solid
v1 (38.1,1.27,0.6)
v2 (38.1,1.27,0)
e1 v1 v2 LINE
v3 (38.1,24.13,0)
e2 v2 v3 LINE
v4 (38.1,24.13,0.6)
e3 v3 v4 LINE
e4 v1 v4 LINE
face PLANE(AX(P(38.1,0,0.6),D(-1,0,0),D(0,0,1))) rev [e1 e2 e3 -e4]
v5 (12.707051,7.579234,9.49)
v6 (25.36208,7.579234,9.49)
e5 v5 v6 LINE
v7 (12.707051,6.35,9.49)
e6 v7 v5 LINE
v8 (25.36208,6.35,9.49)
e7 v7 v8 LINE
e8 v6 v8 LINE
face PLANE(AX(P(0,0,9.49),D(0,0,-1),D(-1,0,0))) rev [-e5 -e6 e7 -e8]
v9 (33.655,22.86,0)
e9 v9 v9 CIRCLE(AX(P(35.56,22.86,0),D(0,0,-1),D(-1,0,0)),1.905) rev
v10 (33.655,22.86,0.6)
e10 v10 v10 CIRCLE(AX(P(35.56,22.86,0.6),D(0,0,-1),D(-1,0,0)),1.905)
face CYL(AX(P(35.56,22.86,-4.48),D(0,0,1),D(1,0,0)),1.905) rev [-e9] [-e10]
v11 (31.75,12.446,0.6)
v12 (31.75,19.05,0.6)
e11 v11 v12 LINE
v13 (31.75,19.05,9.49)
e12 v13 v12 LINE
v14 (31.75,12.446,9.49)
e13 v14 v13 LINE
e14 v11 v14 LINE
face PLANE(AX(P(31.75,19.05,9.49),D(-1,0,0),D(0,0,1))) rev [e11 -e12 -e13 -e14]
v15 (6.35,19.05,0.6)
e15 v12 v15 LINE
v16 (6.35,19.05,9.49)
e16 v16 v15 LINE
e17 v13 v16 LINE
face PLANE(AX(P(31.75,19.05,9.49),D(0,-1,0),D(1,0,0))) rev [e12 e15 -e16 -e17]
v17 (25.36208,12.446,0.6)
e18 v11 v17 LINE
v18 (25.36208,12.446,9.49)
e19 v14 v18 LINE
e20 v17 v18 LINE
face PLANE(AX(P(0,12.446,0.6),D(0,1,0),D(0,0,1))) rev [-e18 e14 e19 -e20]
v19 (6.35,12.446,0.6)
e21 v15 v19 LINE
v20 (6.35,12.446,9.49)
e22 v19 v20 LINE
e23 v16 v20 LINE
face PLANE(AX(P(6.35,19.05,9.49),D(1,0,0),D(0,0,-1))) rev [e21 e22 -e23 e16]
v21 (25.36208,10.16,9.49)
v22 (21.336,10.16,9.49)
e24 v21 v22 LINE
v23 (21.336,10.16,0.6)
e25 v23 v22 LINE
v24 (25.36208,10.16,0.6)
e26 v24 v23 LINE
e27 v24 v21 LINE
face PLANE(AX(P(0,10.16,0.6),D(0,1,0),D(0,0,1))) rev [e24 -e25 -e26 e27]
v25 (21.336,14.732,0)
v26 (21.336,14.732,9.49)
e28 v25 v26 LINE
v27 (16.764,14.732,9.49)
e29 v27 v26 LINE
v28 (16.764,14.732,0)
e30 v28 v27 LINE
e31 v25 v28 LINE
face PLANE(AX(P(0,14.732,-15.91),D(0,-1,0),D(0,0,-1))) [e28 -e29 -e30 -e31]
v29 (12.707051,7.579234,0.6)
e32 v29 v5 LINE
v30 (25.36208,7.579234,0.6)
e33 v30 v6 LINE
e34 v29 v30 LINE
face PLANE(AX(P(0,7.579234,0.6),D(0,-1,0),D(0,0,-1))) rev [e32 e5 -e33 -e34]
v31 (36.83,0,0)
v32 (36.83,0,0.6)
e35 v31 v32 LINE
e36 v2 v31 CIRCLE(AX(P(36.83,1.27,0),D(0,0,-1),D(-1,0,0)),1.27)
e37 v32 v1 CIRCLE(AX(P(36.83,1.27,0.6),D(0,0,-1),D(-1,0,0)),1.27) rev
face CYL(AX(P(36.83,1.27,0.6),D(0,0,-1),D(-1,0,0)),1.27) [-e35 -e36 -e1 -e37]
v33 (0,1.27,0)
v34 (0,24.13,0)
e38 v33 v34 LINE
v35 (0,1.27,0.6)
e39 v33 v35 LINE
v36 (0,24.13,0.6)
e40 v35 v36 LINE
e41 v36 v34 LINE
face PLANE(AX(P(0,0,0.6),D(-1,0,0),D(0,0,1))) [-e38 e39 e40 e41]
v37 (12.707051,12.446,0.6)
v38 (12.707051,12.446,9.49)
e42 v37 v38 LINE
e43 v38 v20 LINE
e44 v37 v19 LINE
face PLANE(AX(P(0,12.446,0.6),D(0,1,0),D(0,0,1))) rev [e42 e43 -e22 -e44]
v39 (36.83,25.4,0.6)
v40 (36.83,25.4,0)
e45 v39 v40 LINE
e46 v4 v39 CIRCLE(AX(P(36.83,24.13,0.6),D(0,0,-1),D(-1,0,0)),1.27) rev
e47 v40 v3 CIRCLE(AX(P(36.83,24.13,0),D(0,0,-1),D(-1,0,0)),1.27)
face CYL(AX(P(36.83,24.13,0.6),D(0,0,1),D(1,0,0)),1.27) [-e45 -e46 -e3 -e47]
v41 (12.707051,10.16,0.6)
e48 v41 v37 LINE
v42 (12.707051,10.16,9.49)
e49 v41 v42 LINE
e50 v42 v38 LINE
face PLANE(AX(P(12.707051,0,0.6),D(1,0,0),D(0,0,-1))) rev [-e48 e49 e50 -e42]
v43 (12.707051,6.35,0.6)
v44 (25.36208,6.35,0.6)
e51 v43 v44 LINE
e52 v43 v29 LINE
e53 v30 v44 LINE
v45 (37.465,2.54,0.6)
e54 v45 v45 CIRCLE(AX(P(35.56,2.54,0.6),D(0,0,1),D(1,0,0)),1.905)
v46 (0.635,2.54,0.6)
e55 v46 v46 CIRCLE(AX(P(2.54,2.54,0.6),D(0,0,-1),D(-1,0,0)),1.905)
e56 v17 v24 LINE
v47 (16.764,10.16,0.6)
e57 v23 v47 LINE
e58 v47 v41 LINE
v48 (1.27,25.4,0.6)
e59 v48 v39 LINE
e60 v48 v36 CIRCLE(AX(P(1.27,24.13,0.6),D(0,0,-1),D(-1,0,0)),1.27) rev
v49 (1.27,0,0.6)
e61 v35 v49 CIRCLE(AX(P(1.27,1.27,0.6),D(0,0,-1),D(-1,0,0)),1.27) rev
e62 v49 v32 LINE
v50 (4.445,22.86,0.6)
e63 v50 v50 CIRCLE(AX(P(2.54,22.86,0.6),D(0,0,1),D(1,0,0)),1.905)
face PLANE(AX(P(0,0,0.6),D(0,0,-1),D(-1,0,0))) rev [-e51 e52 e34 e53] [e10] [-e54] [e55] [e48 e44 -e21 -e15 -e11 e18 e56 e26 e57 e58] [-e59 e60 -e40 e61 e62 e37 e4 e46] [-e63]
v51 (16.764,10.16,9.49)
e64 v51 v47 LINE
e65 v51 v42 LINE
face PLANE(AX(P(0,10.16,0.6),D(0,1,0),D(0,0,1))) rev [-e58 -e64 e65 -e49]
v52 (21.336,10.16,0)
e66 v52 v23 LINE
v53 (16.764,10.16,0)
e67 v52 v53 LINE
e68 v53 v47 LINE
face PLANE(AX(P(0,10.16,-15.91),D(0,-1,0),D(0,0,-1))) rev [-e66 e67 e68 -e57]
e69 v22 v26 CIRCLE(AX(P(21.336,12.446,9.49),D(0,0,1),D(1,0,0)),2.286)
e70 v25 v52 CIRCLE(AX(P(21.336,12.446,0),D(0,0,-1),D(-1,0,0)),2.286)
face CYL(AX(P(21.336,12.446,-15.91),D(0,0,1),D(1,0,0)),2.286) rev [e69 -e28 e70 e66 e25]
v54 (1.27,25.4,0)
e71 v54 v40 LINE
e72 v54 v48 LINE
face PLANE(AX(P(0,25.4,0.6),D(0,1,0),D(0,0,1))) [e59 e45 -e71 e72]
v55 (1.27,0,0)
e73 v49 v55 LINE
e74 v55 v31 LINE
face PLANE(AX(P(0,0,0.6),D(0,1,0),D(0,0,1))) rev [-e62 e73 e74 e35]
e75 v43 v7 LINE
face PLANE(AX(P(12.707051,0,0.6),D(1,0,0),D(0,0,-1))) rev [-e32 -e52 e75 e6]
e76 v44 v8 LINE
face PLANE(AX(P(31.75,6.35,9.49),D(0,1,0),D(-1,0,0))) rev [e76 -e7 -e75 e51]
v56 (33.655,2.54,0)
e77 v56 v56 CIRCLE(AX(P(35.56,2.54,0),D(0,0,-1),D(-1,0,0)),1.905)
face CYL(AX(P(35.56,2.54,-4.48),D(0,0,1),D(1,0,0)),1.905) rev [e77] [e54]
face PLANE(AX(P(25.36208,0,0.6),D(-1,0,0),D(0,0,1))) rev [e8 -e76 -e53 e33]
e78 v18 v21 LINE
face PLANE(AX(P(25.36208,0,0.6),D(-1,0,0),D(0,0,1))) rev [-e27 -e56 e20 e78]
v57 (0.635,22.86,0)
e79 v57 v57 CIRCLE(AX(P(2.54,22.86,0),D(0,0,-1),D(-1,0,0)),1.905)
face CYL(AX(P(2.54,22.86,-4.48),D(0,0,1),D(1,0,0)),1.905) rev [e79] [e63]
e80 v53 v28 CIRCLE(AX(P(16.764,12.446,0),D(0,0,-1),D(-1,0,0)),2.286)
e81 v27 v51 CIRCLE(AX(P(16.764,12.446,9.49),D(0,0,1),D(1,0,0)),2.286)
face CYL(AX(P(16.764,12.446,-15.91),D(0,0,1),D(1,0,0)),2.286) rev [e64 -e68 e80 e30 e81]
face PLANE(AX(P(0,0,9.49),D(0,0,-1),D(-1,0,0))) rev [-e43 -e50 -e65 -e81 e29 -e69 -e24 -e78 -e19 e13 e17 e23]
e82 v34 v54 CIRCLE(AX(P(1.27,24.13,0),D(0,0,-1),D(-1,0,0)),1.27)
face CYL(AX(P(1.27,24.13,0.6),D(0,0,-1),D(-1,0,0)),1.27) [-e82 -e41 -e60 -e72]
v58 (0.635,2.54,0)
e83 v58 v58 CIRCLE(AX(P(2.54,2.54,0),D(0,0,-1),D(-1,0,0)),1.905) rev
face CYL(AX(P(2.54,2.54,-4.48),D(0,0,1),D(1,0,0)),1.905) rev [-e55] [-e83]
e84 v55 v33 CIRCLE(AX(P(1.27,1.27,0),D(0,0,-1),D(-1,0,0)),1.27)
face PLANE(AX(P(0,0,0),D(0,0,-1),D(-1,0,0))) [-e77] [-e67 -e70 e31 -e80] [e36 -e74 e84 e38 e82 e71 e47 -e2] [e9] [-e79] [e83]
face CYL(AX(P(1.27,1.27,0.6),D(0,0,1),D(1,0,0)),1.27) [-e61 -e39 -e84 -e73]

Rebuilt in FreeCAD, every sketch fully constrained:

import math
import FreeCAD as App
import Part
import Sketcher
from FreeCAD import Vector
Q = App.Units.Quantity


def edges_at(feature, points):
    """Names of the edges that pass closest to the given points."""
    edges = feature.Shape.Edges
    near = lambda p: min(range(len(edges)), key=lambda i: edges[i].distToShape(Part.Vertex(*p))[0])
    return sorted({f"Edge{near(p) + 1}" for p in points})

doc = App.newDocument("Part")
body = doc.addObject("PartDesign::Body", "Body")

# Sketch on XY plane
sketch1 = body.newObject("Sketcher::SketchObject", "Sketch")
sketch1.AttachmentSupport = (doc.getObject("XY_Plane"), [""])
sketch1.MapMode = "FlatFace"
sketch1.addGeometry(Part.LineSegment(Vector(0, 25, 0), Vector(0, 0, 0)), False)
sketch1.addGeometry(Part.LineSegment(Vector(0, 0, 0), Vector(38, 0, 0)), False)
sketch1.addGeometry(Part.LineSegment(Vector(38, 0, 0), Vector(38, 25, 0)), False)
sketch1.addGeometry(Part.LineSegment(Vector(38, 25, 0), Vector(0, 25, 0)), False)
sketch1.addConstraint(Sketcher.Constraint("Coincident", 0, 2, 1, 1))
sketch1.addConstraint(Sketcher.Constraint("Coincident", 1, 2, 2, 1))
sketch1.addConstraint(Sketcher.Constraint("Coincident", 2, 2, 3, 1))
sketch1.addConstraint(Sketcher.Constraint("Coincident", 3, 2, 0, 1))
sketch1.addConstraint(Sketcher.Constraint("Vertical", 0))
sketch1.addConstraint(Sketcher.Constraint("Horizontal", 1))
sketch1.addConstraint(Sketcher.Constraint("Vertical", 2))
sketch1.addConstraint(Sketcher.Constraint("Horizontal", 3))
sketch1.addConstraint(Sketcher.Constraint("Coincident", 0, 2, -1, 1))
sketch1.addConstraint(Sketcher.Constraint("DistanceY", 0, 2, 0, 1, Q("1 in")))
sketch1.addConstraint(Sketcher.Constraint("DistanceX", 1, 1, 1, 2, Q("1.5 in")))
pad1 = body.newObject("PartDesign::Pad", "Pad")
pad1.Profile = sketch1
pad1.Length = 0.6

# Sketch on XY plane
sketch2 = body.newObject("Sketcher::SketchObject", "Sketch001")
sketch2.AttachmentSupport = (doc.getObject("XY_Plane"), [""])
sketch2.MapMode = "FlatFace"
sketch2.AttachmentOffset = App.Placement(Vector(0, 0, 0.6), App.Rotation())
sketch2.addGeometry(Part.LineSegment(Vector(6, 19, 0), Vector(6, 6, 0)), False)
sketch2.addGeometry(Part.LineSegment(Vector(6, 6, 0), Vector(32, 6, 0)), False)
sketch2.addGeometry(Part.LineSegment(Vector(32, 6, 0), Vector(32, 19, 0)), False)
sketch2.addGeometry(Part.LineSegment(Vector(32, 19, 0), Vector(6, 19, 0)), False)
sketch2.addConstraint(Sketcher.Constraint("Coincident", 0, 2, 1, 1))
sketch2.addConstraint(Sketcher.Constraint("Coincident", 1, 2, 2, 1))
sketch2.addConstraint(Sketcher.Constraint("Coincident", 2, 2, 3, 1))
sketch2.addConstraint(Sketcher.Constraint("Coincident", 3, 2, 0, 1))
sketch2.addConstraint(Sketcher.Constraint("Vertical", 0))
sketch2.addConstraint(Sketcher.Constraint("Horizontal", 1))
sketch2.addConstraint(Sketcher.Constraint("Vertical", 2))
sketch2.addConstraint(Sketcher.Constraint("Horizontal", 3))
sketch2.addConstraint(Sketcher.Constraint("DistanceX", 1, 1, 1, 2, Q("1 in")))
sketch2.addConstraint(Sketcher.Constraint("DistanceY", 0, 2, 0, 1, Q("0.5 in")))
sketch2.addConstraint(Sketcher.Constraint("DistanceX", -1, 1, 0, 2, Q("0.25 in")))
sketch2.addConstraint(Sketcher.Constraint("DistanceY", -1, 1, 0, 2, Q("0.25 in")))
pad2 = body.newObject("PartDesign::Pad", "Pad001")
pad2.Profile = sketch2
pad2.Length = Q("0.35 in")

# Sketch on XY plane
sketch3 = body.newObject("Sketcher::SketchObject", "Sketch002")
sketch3.AttachmentSupport = (doc.getObject("XY_Plane"), [""])
sketch3.MapMode = "FlatFace"
sketch3.AttachmentOffset = App.Placement(Vector(0, 0, 9.49), App.Rotation())
sketch3.addGeometry(Part.LineSegment(Vector(21.3, 14.7, 0), Vector(16.8, 14.7, 0)), False)
sketch3.addGeometry(Part.ArcOfCircle(Part.Circle(Vector(16.8, 12.4, 0), Vector(0, 0, 1), 2.3), math.radians(90), math.radians(270)), False)
sketch3.addGeometry(Part.LineSegment(Vector(16.8, 10.2, 0), Vector(21.3, 10.2, 0)), False)
sketch3.addGeometry(Part.ArcOfCircle(Part.Circle(Vector(21.3, 12.4, 0), Vector(0, 0, 1), 2.3), math.radians(-90), math.radians(90)), False)
sketch3.addConstraint(Sketcher.Constraint("Tangent", 0, 2, 1, 1))
sketch3.addConstraint(Sketcher.Constraint("Tangent", 1, 2, 2, 1))
sketch3.addConstraint(Sketcher.Constraint("Tangent", 2, 2, 3, 1))
sketch3.addConstraint(Sketcher.Constraint("Tangent", 3, 2, 0, 1))
sketch3.addConstraint(Sketcher.Constraint("Horizontal", 0))
sketch3.addConstraint(Sketcher.Constraint("Horizontal", 2))
sketch3.addConstraint(Sketcher.Constraint("Radius", 1, Q("0.09 in")))
sketch3.addConstraint(Sketcher.Constraint("DistanceX", 0, 2, 0, 1, Q("0.18 in")))
sketch3.addConstraint(Sketcher.Constraint("DistanceY", -1, 1, 1, 2, Q("0.4 in")))
sketch3.addConstraint(Sketcher.Constraint("DistanceX", -1, 1, 1, 3, Q("0.66 in")))
pocket1 = body.newObject("PartDesign::Pocket", "Pocket")
pocket1.Profile = sketch3
pocket1.Length = Q("1 in")

# Sketch on XY plane
sketch4 = body.newObject("Sketcher::SketchObject", "Sketch003")
sketch4.AttachmentSupport = (doc.getObject("XY_Plane"), [""])
sketch4.MapMode = "FlatFace"
sketch4.AttachmentOffset = App.Placement(Vector(0, 0, 9.49), App.Rotation())
sketch4.addGeometry(Part.LineSegment(Vector(12.7, 10.2, 0), Vector(12.7, 12.4, 0)), False)
sketch4.addGeometry(Part.LineSegment(Vector(12.7, 12.4, 0), Vector(6.3, 12.4, 0)), False)
sketch4.addGeometry(Part.LineSegment(Vector(6.3, 12.4, 0), Vector(6.3, 6.3, 0)), False)
sketch4.addGeometry(Part.LineSegment(Vector(6.3, 6.3, 0), Vector(12.7, 6.3, 0)), False)
sketch4.addGeometry(Part.LineSegment(Vector(12.7, 6.3, 0), Vector(12.7, 7.6, 0)), False)
sketch4.addGeometry(Part.LineSegment(Vector(12.7, 7.6, 0), Vector(25.4, 7.6, 0)), False)
sketch4.addGeometry(Part.LineSegment(Vector(25.4, 7.6, 0), Vector(25.4, 6.3, 0)), False)
sketch4.addGeometry(Part.LineSegment(Vector(25.4, 6.3, 0), Vector(31.8, 6.3, 0)), False)
sketch4.addGeometry(Part.LineSegment(Vector(31.8, 6.3, 0), Vector(31.8, 12.4, 0)), False)
sketch4.addGeometry(Part.LineSegment(Vector(31.8, 12.4, 0), Vector(25.4, 12.4, 0)), False)
sketch4.addGeometry(Part.LineSegment(Vector(25.4, 12.4, 0), Vector(25.4, 10.2, 0)), False)
sketch4.addGeometry(Part.LineSegment(Vector(25.4, 10.2, 0), Vector(12.7, 10.2, 0)), False)
sketch4.addConstraint(Sketcher.Constraint("Coincident", 0, 2, 1, 1))
sketch4.addConstraint(Sketcher.Constraint("Coincident", 1, 2, 2, 1))
sketch4.addConstraint(Sketcher.Constraint("Coincident", 2, 2, 3, 1))
sketch4.addConstraint(Sketcher.Constraint("Coincident", 3, 2, 4, 1))
sketch4.addConstraint(Sketcher.Constraint("Coincident", 4, 2, 5, 1))
sketch4.addConstraint(Sketcher.Constraint("Coincident", 5, 2, 6, 1))
sketch4.addConstraint(Sketcher.Constraint("Coincident", 6, 2, 7, 1))
sketch4.addConstraint(Sketcher.Constraint("Coincident", 7, 2, 8, 1))
sketch4.addConstraint(Sketcher.Constraint("Coincident", 8, 2, 9, 1))
sketch4.addConstraint(Sketcher.Constraint("Coincident", 9, 2, 10, 1))
sketch4.addConstraint(Sketcher.Constraint("Coincident", 10, 2, 11, 1))
sketch4.addConstraint(Sketcher.Constraint("Coincident", 11, 2, 0, 1))
sketch4.addConstraint(Sketcher.Constraint("Vertical", 0))
sketch4.addConstraint(Sketcher.Constraint("Horizontal", 1))
sketch4.addConstraint(Sketcher.Constraint("Vertical", 2))
sketch4.addConstraint(Sketcher.Constraint("Horizontal", 3))
sketch4.addConstraint(Sketcher.Constraint("Vertical", 4))
sketch4.addConstraint(Sketcher.Constraint("Horizontal", 5))
sketch4.addConstraint(Sketcher.Constraint("Vertical", 6))
sketch4.addConstraint(Sketcher.Constraint("Horizontal", 7))
sketch4.addConstraint(Sketcher.Constraint("Vertical", 8))
sketch4.addConstraint(Sketcher.Constraint("Horizontal", 9))
sketch4.addConstraint(Sketcher.Constraint("Vertical", 10))
sketch4.addConstraint(Sketcher.Constraint("Horizontal", 11))
sketch4.addConstraint(Sketcher.Constraint("Horizontal", 3, 2, 6, 2))
sketch4.addConstraint(Sketcher.Constraint("Horizontal", 1, 2, 8, 2))
sketch4.addConstraint(Sketcher.Constraint("Vertical", 0, 2, 3, 2))
sketch4.addConstraint(Sketcher.Constraint("Vertical", 6, 2, 9, 2))
sketch4.addConstraint(Sketcher.Constraint("DistanceY", 0, 1, 0, 2, Q("0.09 in")))
sketch4.addConstraint(Sketcher.Constraint("DistanceY", 2, 2, 2, 1, Q("0.24 in")))
sketch4.addConstraint(Sketcher.Constraint("DistanceY", -1, 1, 10, 2, Q("0.4 in")))
sketch4.addConstraint(Sketcher.Constraint("DistanceX", -1, 1, 1, 2, Q("0.25 in")))
sketch4.addConstraint(Sketcher.Constraint("DistanceX", -1, 1, 7, 2, Q("1.25 in")))
sketch4.addConstraint(Sketcher.Constraint("DistanceX", 1, 2, 1, 1, 6.357051))
sketch4.addConstraint(Sketcher.Constraint("DistanceX", 5, 1, 5, 2, 12.655029))
sketch4.addConstraint(Sketcher.Constraint("DistanceY", 4, 1, 4, 2, 1.229234))
pocket2 = body.newObject("PartDesign::Pocket", "Pocket001")
pocket2.Profile = sketch4
pocket2.Length = Q("0.35 in")

# Sketch on XY plane
sketch5 = body.newObject("Sketcher::SketchObject", "Sketch004")
sketch5.AttachmentSupport = (doc.getObject("XY_Plane"), [""])
sketch5.MapMode = "FlatFace"
sketch5.AttachmentOffset = App.Placement(Vector(0, 0, 0.6), App.Rotation())
sketch5.addGeometry(Part.Circle(Vector(2.5, 22.9, 0), Vector(0, 0, 1), 1.9), False)
sketch5.addGeometry(Part.Circle(Vector(35.6, 22.9, 0), Vector(0, 0, 1), 1.9), False)
sketch5.addGeometry(Part.Circle(Vector(2.5, 2.5, 0), Vector(0, 0, 1), 1.9), False)
sketch5.addGeometry(Part.Circle(Vector(35.6, 2.5, 0), Vector(0, 0, 1), 1.9), False)
sketch5.addConstraint(Sketcher.Constraint("Equal", 0, 1))
sketch5.addConstraint(Sketcher.Constraint("Equal", 1, 2))
sketch5.addConstraint(Sketcher.Constraint("Equal", 2, 3))
sketch5.addConstraint(Sketcher.Constraint("Horizontal", 0, 3, 1, 3))
sketch5.addConstraint(Sketcher.Constraint("Horizontal", 2, 3, 3, 3))
sketch5.addConstraint(Sketcher.Constraint("Vertical", 0, 3, 2, 3))
sketch5.addConstraint(Sketcher.Constraint("Vertical", 1, 3, 3, 3))
sketch5.addConstraint(Sketcher.Constraint("Diameter", 0, Q("0.15 in")))
sketch5.addConstraint(Sketcher.Constraint("DistanceX", -1, 1, 0, 3, Q("0.1 in")))
sketch5.addConstraint(Sketcher.Constraint("DistanceY", -1, 1, 0, 3, Q("0.9 in")))
sketch5.addConstraint(Sketcher.Constraint("DistanceX", -1, 1, 1, 3, Q("1.4 in")))
sketch5.addConstraint(Sketcher.Constraint("DistanceY", -1, 1, 2, 3, Q("0.1 in")))
pocket3 = body.newObject("PartDesign::Pocket", "Pocket002")
pocket3.Profile = sketch5
pocket3.Length = Q("0.2 in")
doc.recompute()

fillet = body.newObject("PartDesign::Fillet", "Fillet")
fillet.Base = (pocket3, edges_at(pocket3, [
    (0, 0, 0.3),
    (38.1, 0, 0.3),
    (38.1, 25.4, 0.3),
    (0, 25.4, 0.3),
]))
fillet.Radius = Q("0.05 in")

doc.recompute()
